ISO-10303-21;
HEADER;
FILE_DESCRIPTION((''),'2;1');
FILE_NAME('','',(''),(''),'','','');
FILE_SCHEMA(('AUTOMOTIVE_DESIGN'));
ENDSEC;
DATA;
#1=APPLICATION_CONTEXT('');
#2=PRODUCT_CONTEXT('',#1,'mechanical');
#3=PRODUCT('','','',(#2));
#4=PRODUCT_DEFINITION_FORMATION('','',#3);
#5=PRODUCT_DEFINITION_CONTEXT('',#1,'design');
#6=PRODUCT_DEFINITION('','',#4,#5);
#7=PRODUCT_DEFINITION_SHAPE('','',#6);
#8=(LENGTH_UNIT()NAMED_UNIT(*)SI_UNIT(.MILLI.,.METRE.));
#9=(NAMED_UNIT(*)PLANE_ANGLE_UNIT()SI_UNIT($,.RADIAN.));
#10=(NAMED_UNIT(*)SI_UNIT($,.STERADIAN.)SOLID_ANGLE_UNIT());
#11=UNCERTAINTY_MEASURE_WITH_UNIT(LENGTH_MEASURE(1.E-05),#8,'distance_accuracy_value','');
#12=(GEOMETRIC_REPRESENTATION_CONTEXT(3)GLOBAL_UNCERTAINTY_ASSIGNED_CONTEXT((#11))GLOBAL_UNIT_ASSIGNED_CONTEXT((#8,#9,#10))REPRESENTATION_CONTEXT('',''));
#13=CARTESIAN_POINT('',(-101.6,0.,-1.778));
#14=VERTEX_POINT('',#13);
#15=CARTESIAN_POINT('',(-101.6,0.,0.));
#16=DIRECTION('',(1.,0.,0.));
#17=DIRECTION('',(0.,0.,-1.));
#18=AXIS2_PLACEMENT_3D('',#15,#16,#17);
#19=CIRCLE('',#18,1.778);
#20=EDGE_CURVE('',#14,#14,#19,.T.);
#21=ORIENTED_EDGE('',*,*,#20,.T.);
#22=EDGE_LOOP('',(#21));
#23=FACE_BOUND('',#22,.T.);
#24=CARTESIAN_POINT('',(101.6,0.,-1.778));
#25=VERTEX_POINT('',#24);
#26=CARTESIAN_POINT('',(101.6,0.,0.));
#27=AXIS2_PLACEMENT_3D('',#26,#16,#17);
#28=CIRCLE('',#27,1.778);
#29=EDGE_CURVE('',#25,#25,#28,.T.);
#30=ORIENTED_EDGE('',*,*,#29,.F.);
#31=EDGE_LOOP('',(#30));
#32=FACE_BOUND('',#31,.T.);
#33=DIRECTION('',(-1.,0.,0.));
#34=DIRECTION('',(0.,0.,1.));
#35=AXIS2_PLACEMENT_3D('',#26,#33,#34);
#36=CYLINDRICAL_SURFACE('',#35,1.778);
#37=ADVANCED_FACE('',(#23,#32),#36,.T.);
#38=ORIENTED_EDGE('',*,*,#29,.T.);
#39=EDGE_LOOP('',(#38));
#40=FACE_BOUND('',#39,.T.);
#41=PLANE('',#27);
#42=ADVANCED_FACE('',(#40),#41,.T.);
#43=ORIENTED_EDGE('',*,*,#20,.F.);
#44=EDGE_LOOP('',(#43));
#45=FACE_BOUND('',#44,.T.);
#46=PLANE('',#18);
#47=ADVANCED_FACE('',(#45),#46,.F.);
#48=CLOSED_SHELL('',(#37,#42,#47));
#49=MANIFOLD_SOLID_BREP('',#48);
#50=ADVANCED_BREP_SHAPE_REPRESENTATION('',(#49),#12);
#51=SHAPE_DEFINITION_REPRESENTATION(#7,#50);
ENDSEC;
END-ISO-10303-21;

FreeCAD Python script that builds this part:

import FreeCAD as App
import Part
import Sketcher
Q = App.Units.Quantity

doc = App.newDocument("Part")
body = doc.addObject("PartDesign::Body", "Body")

sketch1 = body.newObject("Sketcher::SketchObject", "Sketch")
sketch1.AttachmentSupport = (doc.getObject("YZ_Plane"), [""])
sketch1.MapMode = "FlatFace"
sketch1.addGeometry(Part.Circle(App.Vector(0, 0, 0), App.Vector(0, 0, 1), 1.8), False)
sketch1.addConstraint(Sketcher.Constraint("Coincident", 0, 3, -1, 1))
sketch1.addConstraint(Sketcher.Constraint("Diameter", 0, Q("0.14 in")))
pad1 = body.newObject("PartDesign::Pad", "Pad")
pad1.Profile = sketch1
pad1.Length = Q("8 in")
pad1.Midplane = True

doc.recompute()
